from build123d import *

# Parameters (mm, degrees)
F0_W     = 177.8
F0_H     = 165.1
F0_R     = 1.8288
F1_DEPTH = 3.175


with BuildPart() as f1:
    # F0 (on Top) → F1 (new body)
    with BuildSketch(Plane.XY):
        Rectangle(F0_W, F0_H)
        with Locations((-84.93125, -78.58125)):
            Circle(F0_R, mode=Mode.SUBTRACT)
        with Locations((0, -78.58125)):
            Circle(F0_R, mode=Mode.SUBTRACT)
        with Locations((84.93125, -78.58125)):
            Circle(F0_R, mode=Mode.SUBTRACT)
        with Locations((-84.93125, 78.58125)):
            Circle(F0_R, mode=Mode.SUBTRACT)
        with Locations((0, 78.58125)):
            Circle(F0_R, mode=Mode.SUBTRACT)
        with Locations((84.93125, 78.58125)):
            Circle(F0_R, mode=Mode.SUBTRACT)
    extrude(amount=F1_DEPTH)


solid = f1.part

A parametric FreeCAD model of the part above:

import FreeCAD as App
import Part
import Sketcher

V = App.Vector
Q = App.Units.Quantity

doc = App.newDocument("Part")
params = doc.addObject("Spreadsheet::Sheet", "Params")
for row, (alias, value) in enumerate([
    ("sketch1_width", "7 in"),
    ("sketch1_diameter", "0.144 in"),
    ("sketch1_height", "6.5 in"),
    ("pad1_length", "0.125 in"),
], start=1):
    params.set(f"A{row}", alias)
    params.set(f"B{row}", "=" + value)
    params.setAlias(f"B{row}", alias)

body = doc.addObject("PartDesign::Body", "Body")

sketch1 = doc.addObject("Sketcher::SketchObject", "Sketch")
body.addObject(sketch1)
sketch1.AttachmentSupport = (doc.XY_Plane, [""])
sketch1.MapMode = "FlatFace"
sketch1.addGeometry([
    Part.LineSegment(V(-88.9, 82.55, 0), V(-88.9, -82.55, 0)),
    Part.LineSegment(V(-88.9, -82.55, 0), V(88.9, -82.55, 0)),
    Part.LineSegment(V(88.9, -82.55, 0), V(88.9, 82.55, 0)),
    Part.LineSegment(V(88.9, 82.55, 0), V(-88.9, 82.55, 0)),
    Part.Circle(V(-84.93125, -78.58125, 0), V(0, 0, 1), 1.8288),
    Part.Circle(V(0, -78.58125, 0), V(0, 0, 1), 1.8288),
    Part.Circle(V(84.93125, -78.58125, 0), V(0, 0, 1), 1.8288),
    Part.Circle(V(-84.93125, 78.58125, 0), V(0, 0, 1), 1.8288),
    Part.Circle(V(0, 78.58125, 0), V(0, 0, 1), 1.8288),
    Part.Circle(V(84.93125, 78.58125, 0), V(0, 0, 1), 1.8288),
], False)
sketch1.addConstraint([
    Sketcher.Constraint("Coincident", 0, 2, 1, 1),
    Sketcher.Constraint("Coincident", 1, 2, 2, 1),
    Sketcher.Constraint("Coincident", 2, 2, 3, 1),
    Sketcher.Constraint("Coincident", 3, 2, 0, 1),
    Sketcher.Constraint("Vertical", 0),
    Sketcher.Constraint("Horizontal", 1),
    Sketcher.Constraint("Vertical", 2),
    Sketcher.Constraint("Horizontal", 3),
    Sketcher.Constraint("Equal", 4, 5),
    Sketcher.Constraint("Equal", 5, 6),
    Sketcher.Constraint("Equal", 6, 7),
    Sketcher.Constraint("Equal", 7, 8),
    Sketcher.Constraint("Equal", 8, 9),
    Sketcher.Constraint("Symmetric", 6, 3, 7, 3, -1, 1),
    Sketcher.Constraint("Symmetric", 5, 3, 8, 3, -1, 1),
    Sketcher.Constraint("Symmetric", 4, 3, 9, 3, -1, 1),
    Sketcher.Constraint("Symmetric", 0, 2, 2, 2, -1, 1),
    Sketcher.Constraint("Symmetric", 4, 3, 6, 3, -2),
    Sketcher.Constraint("PointOnObject", 5, 3, -2),
    Sketcher.Constraint("Horizontal", 4, 3, 5, 3),
    Sketcher.Constraint("DistanceX", 1, 1, 1, 2, Q("7 in")),
    Sketcher.Constraint("Diameter", 4, Q("0.144 in")),
    Sketcher.Constraint("DistanceY", 0, 2, 0, 1, Q("6.5 in")),
    Sketcher.Constraint("DistanceX", 4, 3, -1, 1, Q("3.34375 in")),
    Sketcher.Constraint("DistanceY", 4, 3, -1, 1, Q("3.09375 in")),
])
sketch1.setExpression("Constraints[20]", "Params.sketch1_width")
sketch1.setExpression("Constraints[21]", "Params.sketch1_diameter")
sketch1.setExpression("Constraints[22]", "Params.sketch1_height")
pad1 = doc.addObject("PartDesign::Pad", "Pad")
body.addObject(pad1)
pad1.Profile = sketch1
pad1.setExpression("Length", "Params.pad1_length")

doc.recompute()
